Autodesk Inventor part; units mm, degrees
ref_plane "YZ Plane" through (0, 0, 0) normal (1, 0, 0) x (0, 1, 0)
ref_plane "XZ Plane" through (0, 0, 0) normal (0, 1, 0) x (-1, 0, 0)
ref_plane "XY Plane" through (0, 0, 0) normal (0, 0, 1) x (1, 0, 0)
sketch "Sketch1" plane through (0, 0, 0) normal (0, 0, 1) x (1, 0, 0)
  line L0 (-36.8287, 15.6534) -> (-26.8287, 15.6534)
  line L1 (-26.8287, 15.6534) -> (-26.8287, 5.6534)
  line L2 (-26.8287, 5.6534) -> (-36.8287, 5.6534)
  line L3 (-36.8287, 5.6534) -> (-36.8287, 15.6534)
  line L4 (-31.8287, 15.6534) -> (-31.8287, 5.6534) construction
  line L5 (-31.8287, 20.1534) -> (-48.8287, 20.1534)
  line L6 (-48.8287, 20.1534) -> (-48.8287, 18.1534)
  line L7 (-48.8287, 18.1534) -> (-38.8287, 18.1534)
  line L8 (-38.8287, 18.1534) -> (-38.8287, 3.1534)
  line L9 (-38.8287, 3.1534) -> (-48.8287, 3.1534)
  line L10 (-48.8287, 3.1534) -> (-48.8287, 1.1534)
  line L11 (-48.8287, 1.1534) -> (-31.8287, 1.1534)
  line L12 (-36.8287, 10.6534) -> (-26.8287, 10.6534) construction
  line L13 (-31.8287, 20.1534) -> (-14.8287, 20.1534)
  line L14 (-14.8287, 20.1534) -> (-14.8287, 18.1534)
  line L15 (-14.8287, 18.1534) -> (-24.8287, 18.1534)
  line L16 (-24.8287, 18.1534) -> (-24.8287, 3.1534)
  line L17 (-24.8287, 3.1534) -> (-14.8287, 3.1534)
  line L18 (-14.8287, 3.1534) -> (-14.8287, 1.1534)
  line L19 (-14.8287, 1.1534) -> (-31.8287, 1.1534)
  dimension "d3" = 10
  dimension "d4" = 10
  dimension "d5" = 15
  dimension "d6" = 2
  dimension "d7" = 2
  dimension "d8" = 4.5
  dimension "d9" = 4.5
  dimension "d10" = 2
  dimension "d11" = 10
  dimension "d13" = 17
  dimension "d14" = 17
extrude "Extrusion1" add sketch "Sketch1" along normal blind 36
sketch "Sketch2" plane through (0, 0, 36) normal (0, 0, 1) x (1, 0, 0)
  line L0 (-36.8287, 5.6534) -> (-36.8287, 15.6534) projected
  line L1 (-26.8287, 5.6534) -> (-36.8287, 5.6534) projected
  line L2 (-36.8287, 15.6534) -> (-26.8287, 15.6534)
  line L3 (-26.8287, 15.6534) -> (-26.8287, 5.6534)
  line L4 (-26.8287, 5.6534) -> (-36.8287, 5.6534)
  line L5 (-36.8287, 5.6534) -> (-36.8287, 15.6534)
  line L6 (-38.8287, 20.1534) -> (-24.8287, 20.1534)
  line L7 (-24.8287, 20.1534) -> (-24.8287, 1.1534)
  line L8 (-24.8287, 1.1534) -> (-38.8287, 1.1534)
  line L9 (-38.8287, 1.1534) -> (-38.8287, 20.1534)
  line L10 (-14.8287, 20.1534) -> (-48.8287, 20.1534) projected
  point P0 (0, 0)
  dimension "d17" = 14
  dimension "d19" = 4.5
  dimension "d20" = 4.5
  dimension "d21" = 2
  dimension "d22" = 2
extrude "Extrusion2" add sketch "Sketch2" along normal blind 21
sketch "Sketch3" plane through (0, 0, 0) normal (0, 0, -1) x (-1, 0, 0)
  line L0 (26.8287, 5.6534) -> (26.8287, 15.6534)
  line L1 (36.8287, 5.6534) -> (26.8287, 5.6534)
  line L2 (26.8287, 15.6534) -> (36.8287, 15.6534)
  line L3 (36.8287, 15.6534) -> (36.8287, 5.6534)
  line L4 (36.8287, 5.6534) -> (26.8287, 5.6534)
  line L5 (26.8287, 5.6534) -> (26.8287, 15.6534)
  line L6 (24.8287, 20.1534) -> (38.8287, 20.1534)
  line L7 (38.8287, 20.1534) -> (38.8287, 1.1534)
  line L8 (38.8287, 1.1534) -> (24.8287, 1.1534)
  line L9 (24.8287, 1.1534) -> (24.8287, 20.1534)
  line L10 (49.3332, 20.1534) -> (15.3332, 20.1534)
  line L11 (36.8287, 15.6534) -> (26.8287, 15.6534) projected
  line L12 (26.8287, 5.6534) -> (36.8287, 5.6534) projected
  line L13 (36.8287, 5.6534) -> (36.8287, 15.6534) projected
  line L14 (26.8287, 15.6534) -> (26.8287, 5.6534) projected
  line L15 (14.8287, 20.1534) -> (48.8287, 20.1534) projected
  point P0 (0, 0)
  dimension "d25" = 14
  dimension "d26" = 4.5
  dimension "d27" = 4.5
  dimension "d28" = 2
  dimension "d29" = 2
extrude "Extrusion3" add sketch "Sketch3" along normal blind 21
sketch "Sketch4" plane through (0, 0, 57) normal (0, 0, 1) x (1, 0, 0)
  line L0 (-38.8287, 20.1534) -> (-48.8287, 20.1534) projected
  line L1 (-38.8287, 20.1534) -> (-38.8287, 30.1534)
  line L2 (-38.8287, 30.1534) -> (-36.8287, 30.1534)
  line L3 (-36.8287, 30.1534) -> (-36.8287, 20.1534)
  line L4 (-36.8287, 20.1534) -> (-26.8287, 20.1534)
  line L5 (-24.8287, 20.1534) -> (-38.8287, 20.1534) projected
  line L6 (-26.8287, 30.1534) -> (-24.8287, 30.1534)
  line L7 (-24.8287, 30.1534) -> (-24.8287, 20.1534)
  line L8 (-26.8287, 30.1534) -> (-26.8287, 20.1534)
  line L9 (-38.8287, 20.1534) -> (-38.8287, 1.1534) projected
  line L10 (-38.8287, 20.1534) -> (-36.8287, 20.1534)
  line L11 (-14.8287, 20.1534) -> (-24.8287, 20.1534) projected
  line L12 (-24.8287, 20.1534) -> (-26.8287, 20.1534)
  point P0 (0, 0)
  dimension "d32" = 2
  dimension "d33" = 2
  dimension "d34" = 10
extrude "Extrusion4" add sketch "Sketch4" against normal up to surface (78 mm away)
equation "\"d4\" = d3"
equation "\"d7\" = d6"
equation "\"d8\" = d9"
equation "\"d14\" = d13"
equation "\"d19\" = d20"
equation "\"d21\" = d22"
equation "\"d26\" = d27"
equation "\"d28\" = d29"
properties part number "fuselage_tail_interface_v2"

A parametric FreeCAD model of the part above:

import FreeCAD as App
import Part
import Sketcher

V = App.Vector
Q = App.Units.Quantity


def add_polygon(sketch, points):
    """Adds a closed chain of lines whose ends are joined by coincident constraints."""
    first, n = sketch.GeometryCount, len(points)
    for a, b in zip(points, points[1:] + points[:1]):
        sketch.addGeometry(Part.LineSegment(App.Vector(*a, 0), App.Vector(*b, 0)), False)
    for i in range(n):
        sketch.addConstraint(Sketcher.Constraint("Coincident", first + i, 2, first + (i + 1) % n, 1))

doc = App.newDocument("Part")
body = doc.addObject("PartDesign::Body", "Body")

# Sketch on XY plane
sketch1 = body.newObject("Sketcher::SketchObject", "Sketch")
sketch1.AttachmentSupport = (doc.getObject("XY_Plane"), [""])
sketch1.MapMode = "FlatFace"
add_polygon(sketch1, [(-14.8, 20.2), (-48.8, 20.2), (-48.8, 18.2), (-38.8, 18.2), (-38.8, 3.2), (-48.8, 3.2), (-48.8, 1.2), (-14.8, 1.2), (-14.8, 3.2), (-24.8, 3.2), (-24.8, 18.2), (-14.8, 18.2)])  # lines 0-11
add_polygon(sketch1, [(-36.8, 5.7), (-36.8, 15.7), (-26.8, 15.7), (-26.8, 5.7)])  # lines 12-15
sketch1.addConstraint([
    Sketcher.Constraint("Horizontal", 0),
    Sketcher.Constraint("Vertical", 1),
    Sketcher.Constraint("Horizontal", 2),
    Sketcher.Constraint("Vertical", 3),
    Sketcher.Constraint("Horizontal", 4),
    Sketcher.Constraint("Vertical", 5),
    Sketcher.Constraint("Horizontal", 6),
    Sketcher.Constraint("Vertical", 7),
    Sketcher.Constraint("Horizontal", 8),
    Sketcher.Constraint("Vertical", 9),
    Sketcher.Constraint("Horizontal", 10),
    Sketcher.Constraint("Vertical", 11),
    Sketcher.Constraint("Vertical", 12),
    Sketcher.Constraint("Horizontal", 13),
    Sketcher.Constraint("Vertical", 14),
    Sketcher.Constraint("Horizontal", 15),
    Sketcher.Constraint("Horizontal", 4, 2, 7, 2),
    Sketcher.Constraint("Horizontal", 2, 2, 9, 2),
    Sketcher.Constraint("Vertical", 1, 2, 4, 2),
    Sketcher.Constraint("Vertical", 7, 2, 10, 2),
    Sketcher.Constraint("Equal", 4, 8),
    Sketcher.Constraint("Equal", 10, 13),
    Sketcher.Constraint("Equal", 1, 5),
    Sketcher.Constraint("Equal", 15, 12),
    Sketcher.Constraint("DistanceX", 2, 1, 2, 2, Q("10 mm")),
    Sketcher.Constraint("DistanceY", 1, 2, 1, 1, Q("2 mm")),
    Sketcher.Constraint("DistanceY", 3, 2, 3, 1, Q("15 mm")),
    Sketcher.Constraint("DistanceX", 2, 2, 12, 2, Q("2 mm")),
    Sketcher.Constraint("DistanceX", 13, 2, 9, 2, Q("2 mm")),
    Sketcher.Constraint("DistanceY", 12, 2, 0, 2, Q("4.5 mm")),
    Sketcher.Constraint("DistanceX", 0, 2, -1, 1, Q("48.8287 mm")),
    Sketcher.Constraint("DistanceY", -1, 1, 0, 2, Q("20.1534 mm")),
])
pad1 = body.newObject("PartDesign::Pad", "Pad")
pad1.Profile = sketch1
pad1.Length = 36

# Sketch on XY plane
sketch2 = body.newObject("Sketcher::SketchObject", "Sketch001")
sketch2.AttachmentSupport = (doc.getObject("XY_Plane"), [""])
sketch2.MapMode = "FlatFace"
sketch2.AttachmentOffset = App.Placement(V(0, 0, 36), App.Rotation())
add_polygon(sketch2, [(-25, 20), (-39, 20), (-39, 1), (-25, 1)])  # lines 0-3
add_polygon(sketch2, [(-27, 6), (-37, 6), (-37, 16), (-27, 16)])  # lines 4-7
sketch2.addConstraint([
    Sketcher.Constraint("Horizontal", 0),
    Sketcher.Constraint("Vertical", 1),
    Sketcher.Constraint("Horizontal", 2),
    Sketcher.Constraint("Vertical", 3),
    Sketcher.Constraint("Horizontal", 4),
    Sketcher.Constraint("Vertical", 5),
    Sketcher.Constraint("Horizontal", 6),
    Sketcher.Constraint("Vertical", 7),
    Sketcher.Constraint("Equal", 6, 5),
    Sketcher.Constraint("DistanceX", 0, 2, 0, 1, Q("14 mm")),
    Sketcher.Constraint("DistanceX", 1, 2, 4, 2, Q("2 mm")),
    Sketcher.Constraint("DistanceX", 6, 2, 3, 2, Q("2 mm")),
    Sketcher.Constraint("DistanceY", 1, 2, 4, 2, Q("4.5 mm")),
    Sketcher.Constraint("DistanceY", 5, 2, 0, 2, Q("4.5 mm")),
    Sketcher.Constraint("DistanceX", 0, 2, -1, 1, Q("38.8287 mm")),
    Sketcher.Constraint("DistanceY", -1, 1, 0, 2, Q("20.1534 mm")),
])
pad2 = body.newObject("PartDesign::Pad", "Pad001")
pad2.Profile = sketch2
pad2.Length = 21

# Sketch on XY plane
sketch3 = body.newObject("Sketcher::SketchObject", "Sketch002")
sketch3.AttachmentSupport = (doc.getObject("XY_Plane"), [""])
sketch3.MapMode = "FlatFace"
add_polygon(sketch3, [(-39, 20), (-25, 20), (-25, 1), (-39, 1)])  # lines 0-3
add_polygon(sketch3, [(-37, 6), (-27, 6), (-27, 16), (-37, 16)])  # lines 4-7
sketch3.addConstraint([
    Sketcher.Constraint("Horizontal", 0),
    Sketcher.Constraint("Vertical", 1),
    Sketcher.Constraint("Horizontal", 2),
    Sketcher.Constraint("Vertical", 3),
    Sketcher.Constraint("Horizontal", 4),
    Sketcher.Constraint("Vertical", 5),
    Sketcher.Constraint("Horizontal", 6),
    Sketcher.Constraint("Vertical", 7),
    Sketcher.Constraint("Equal", 6, 5),
    Sketcher.Constraint("DistanceX", 0, 1, 0, 2, Q("14 mm")),
    Sketcher.Constraint("DistanceX", 4, 2, 1, 2, Q("2 mm")),
    Sketcher.Constraint("DistanceX", 3, 2, 6, 2, Q("2 mm")),
    Sketcher.Constraint("DistanceY", 1, 2, 4, 2, Q("4.5 mm")),
    Sketcher.Constraint("DistanceY", 5, 2, 0, 2, Q("4.5 mm")),
    Sketcher.Constraint("DistanceX", 0, 2, -1, 1, Q("24.8287 mm")),
    Sketcher.Constraint("DistanceY", -1, 1, 0, 2, Q("20.1534 mm")),
])
pad3 = body.newObject("PartDesign::Pad", "Pad002")
pad3.Profile = sketch3
pad3.Length = 21
pad3.Reversed = True

# Sketch on XY plane
sketch4 = body.newObject("Sketcher::SketchObject", "Sketch003")
sketch4.AttachmentSupport = (doc.getObject("XY_Plane"), [""])
sketch4.MapMode = "FlatFace"
sketch4.AttachmentOffset = App.Placement(V(0, 0, 57), App.Rotation())
add_polygon(sketch4, [(-26.8, 30.2), (-26.8, 20.2), (-24.8, 20.2), (-24.8, 30.2)])  # lines 0-3
add_polygon(sketch4, [(-38.8, 30.2), (-38.8, 20.2), (-36.8, 20.2), (-36.8, 30.2)])  # lines 4-7
sketch4.addConstraint([
    Sketcher.Constraint("Vertical", 0),
    Sketcher.Constraint("Horizontal", 1),
    Sketcher.Constraint("Vertical", 2),
    Sketcher.Constraint("Horizontal", 3),
    Sketcher.Constraint("Vertical", 4),
    Sketcher.Constraint("Horizontal", 5),
    Sketcher.Constraint("Vertical", 6),
    Sketcher.Constraint("Horizontal", 7),
    Sketcher.Constraint("Horizontal", 1, 2, 4, 2),
    Sketcher.Constraint("Horizontal", 3, 2, 6, 2),
    Sketcher.Constraint("Equal", 3, 5),
    Sketcher.Constraint("DistanceX", 1, 1, 1, 2, Q("2 mm")),
    Sketcher.Constraint("DistanceY", 0, 2, 0, 1, Q("10 mm")),
    Sketcher.Constraint("DistanceX", 5, 2, 0, 2, Q("10 mm")),
    Sketcher.Constraint("DistanceX", 0, 2, -1, 1, Q("26.8287 mm")),
    Sketcher.Constraint("DistanceY", -1, 1, 0, 2, Q("20.1534 mm")),
])
pad4 = body.newObject("PartDesign::Pad", "Pad003")
pad4.Profile = sketch4
pad4.Length = 78
pad4.Reversed = True

doc.recompute()
